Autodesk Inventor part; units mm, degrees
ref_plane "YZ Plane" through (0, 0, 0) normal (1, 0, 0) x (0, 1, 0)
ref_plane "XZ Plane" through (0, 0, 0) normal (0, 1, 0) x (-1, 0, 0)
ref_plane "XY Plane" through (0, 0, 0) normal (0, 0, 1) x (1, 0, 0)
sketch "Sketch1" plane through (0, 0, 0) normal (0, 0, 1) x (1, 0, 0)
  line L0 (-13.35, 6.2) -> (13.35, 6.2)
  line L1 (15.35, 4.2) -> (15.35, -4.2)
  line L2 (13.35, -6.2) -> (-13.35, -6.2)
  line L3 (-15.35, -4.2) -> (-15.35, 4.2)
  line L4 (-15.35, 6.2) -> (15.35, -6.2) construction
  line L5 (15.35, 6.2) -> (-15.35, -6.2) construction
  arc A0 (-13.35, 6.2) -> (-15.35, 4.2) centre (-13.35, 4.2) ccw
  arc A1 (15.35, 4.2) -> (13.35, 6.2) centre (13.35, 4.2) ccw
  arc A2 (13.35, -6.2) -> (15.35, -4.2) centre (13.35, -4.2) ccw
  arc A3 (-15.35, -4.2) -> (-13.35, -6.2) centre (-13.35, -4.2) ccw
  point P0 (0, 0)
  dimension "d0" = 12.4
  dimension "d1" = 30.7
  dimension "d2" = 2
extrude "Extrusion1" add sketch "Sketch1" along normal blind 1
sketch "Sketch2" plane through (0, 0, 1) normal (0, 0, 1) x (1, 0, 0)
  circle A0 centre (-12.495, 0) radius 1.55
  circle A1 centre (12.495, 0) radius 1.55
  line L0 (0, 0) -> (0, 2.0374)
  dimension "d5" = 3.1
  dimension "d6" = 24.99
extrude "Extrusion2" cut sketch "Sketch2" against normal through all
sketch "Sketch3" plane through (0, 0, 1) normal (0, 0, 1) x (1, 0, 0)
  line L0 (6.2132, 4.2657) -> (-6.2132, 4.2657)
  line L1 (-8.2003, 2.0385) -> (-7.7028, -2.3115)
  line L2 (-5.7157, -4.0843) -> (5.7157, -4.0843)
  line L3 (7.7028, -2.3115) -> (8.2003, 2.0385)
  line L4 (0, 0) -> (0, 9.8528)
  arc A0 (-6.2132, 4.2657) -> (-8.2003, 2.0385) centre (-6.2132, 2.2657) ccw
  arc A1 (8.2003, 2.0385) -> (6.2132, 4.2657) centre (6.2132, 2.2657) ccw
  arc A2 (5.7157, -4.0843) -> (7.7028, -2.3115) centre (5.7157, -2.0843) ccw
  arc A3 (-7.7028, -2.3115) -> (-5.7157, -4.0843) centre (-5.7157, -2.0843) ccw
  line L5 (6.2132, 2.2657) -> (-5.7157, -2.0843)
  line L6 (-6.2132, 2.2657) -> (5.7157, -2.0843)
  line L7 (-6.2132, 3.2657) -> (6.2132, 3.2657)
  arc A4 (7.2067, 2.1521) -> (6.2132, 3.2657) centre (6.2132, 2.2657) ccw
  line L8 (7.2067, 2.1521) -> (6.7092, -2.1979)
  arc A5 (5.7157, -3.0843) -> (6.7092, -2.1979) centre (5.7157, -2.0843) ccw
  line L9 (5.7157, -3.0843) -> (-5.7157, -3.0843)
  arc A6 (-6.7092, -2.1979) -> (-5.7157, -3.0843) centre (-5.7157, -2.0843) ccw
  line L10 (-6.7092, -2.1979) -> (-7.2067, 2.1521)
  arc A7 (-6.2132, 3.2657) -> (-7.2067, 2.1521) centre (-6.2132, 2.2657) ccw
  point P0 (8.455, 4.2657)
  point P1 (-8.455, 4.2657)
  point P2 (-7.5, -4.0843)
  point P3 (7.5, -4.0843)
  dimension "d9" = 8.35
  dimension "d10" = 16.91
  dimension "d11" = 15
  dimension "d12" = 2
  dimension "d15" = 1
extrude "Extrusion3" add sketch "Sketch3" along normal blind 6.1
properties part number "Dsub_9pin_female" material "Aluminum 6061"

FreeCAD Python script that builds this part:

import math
import FreeCAD as App
import Part
import Sketcher

doc = App.newDocument("Part")
body = doc.addObject("PartDesign::Body", "Body")

sketch1 = body.newObject("Sketcher::SketchObject", "Sketch")
sketch1.AttachmentSupport = (doc.getObject("XY_Plane"), [""])
sketch1.MapMode = "FlatFace"
sketch1.addGeometry(Part.LineSegment(App.Vector(13.3, 6.2, 0), App.Vector(-13.3, 6.2, 0)), False)
sketch1.addGeometry(Part.ArcOfCircle(Part.Circle(App.Vector(-13.3, 4.2, 0), App.Vector(0, 0, 1), 2), math.radians(90), math.radians(180)), False)
sketch1.addGeometry(Part.LineSegment(App.Vector(-15.3, 4.2, 0), App.Vector(-15.3, -4.2, 0)), False)
sketch1.addGeometry(Part.ArcOfCircle(Part.Circle(App.Vector(-13.3, -4.2, 0), App.Vector(0, 0, 1), 2), math.radians(180), math.radians(270)), False)
sketch1.addGeometry(Part.LineSegment(App.Vector(-13.3, -6.2, 0), App.Vector(13.3, -6.2, 0)), False)
sketch1.addGeometry(Part.ArcOfCircle(Part.Circle(App.Vector(13.3, -4.2, 0), App.Vector(0, 0, 1), 2), math.radians(-90), math.radians(0)), False)
sketch1.addGeometry(Part.LineSegment(App.Vector(15.3, -4.2, 0), App.Vector(15.3, 4.2, 0)), False)
sketch1.addGeometry(Part.ArcOfCircle(Part.Circle(App.Vector(13.3, 4.2, 0), App.Vector(0, 0, 1), 2), math.radians(0), math.radians(90)), False)
sketch1.addConstraint(Sketcher.Constraint("Tangent", 0, 2, 1, 1))
sketch1.addConstraint(Sketcher.Constraint("Tangent", 1, 2, 2, 1))
sketch1.addConstraint(Sketcher.Constraint("Tangent", 2, 2, 3, 1))
sketch1.addConstraint(Sketcher.Constraint("Tangent", 3, 2, 4, 1))
sketch1.addConstraint(Sketcher.Constraint("Tangent", 4, 2, 5, 1))
sketch1.addConstraint(Sketcher.Constraint("Tangent", 5, 2, 6, 1))
sketch1.addConstraint(Sketcher.Constraint("Tangent", 6, 2, 7, 1))
sketch1.addConstraint(Sketcher.Constraint("Tangent", 7, 2, 0, 1))
sketch1.addConstraint(Sketcher.Constraint("Horizontal", 0))
sketch1.addConstraint(Sketcher.Constraint("Vertical", 2))
sketch1.addConstraint(Sketcher.Constraint("Horizontal", 4))
sketch1.addConstraint(Sketcher.Constraint("Vertical", 6))
sketch1.addConstraint(Sketcher.Constraint("Equal", 1, 3))
sketch1.addConstraint(Sketcher.Constraint("Equal", 3, 5))
sketch1.addConstraint(Sketcher.Constraint("Equal", 5, 7))
sketch1.addConstraint(Sketcher.Constraint("Symmetric", 1, 3, 5, 3, -1, 1))
sketch1.addConstraint(Sketcher.Constraint("Radius", 1, 2.0))
sketch1.addConstraint(Sketcher.Constraint("DistanceY", 3, 2, 0, 2, 12.4))
sketch1.addConstraint(Sketcher.Constraint("DistanceX", 0, 2, 0, 1, 26.7))
pad1 = body.newObject("PartDesign::Pad", "Pad")
pad1.Profile = sketch1
pad1.Length = 1

sketch2 = body.newObject("Sketcher::SketchObject", "Sketch001")
sketch2.AttachmentSupport = (doc.getObject("XY_Plane"), [""])
sketch2.MapMode = "FlatFace"
sketch2.AttachmentOffset = App.Placement(App.Vector(0, 0, 1), App.Rotation())
sketch2.addGeometry(Part.Circle(App.Vector(-12.5, 0, 0), App.Vector(0, 0, 1), 1.6), False)
sketch2.addGeometry(Part.Circle(App.Vector(12.5, 0, 0), App.Vector(0, 0, 1), 1.6), False)
sketch2.addConstraint(Sketcher.Constraint("Equal", 0, 1))
sketch2.addConstraint(Sketcher.Constraint("Symmetric", 0, 3, 1, 3, -1, 1))
sketch2.addConstraint(Sketcher.Constraint("PointOnObject", 0, 3, -1))
sketch2.addConstraint(Sketcher.Constraint("Diameter", 0, 3.1))
sketch2.addConstraint(Sketcher.Constraint("DistanceX", 0, 3, 1, 3, 24.99))
pocket1 = body.newObject("PartDesign::Pocket", "Pocket")
pocket1.Profile = sketch2
pocket1.Type = "ThroughAll"

sketch3 = body.newObject("Sketcher::SketchObject", "Sketch002")
sketch3.AttachmentSupport = (doc.getObject("XY_Plane"), [""])
sketch3.MapMode = "FlatFace"
sketch3.AttachmentOffset = App.Placement(App.Vector(0, 0, 1), App.Rotation())
sketch3.addGeometry(Part.ArcOfCircle(Part.Circle(App.Vector(6.2, 2.3, 0), App.Vector(0, 0, 1), 2), math.radians(-7), math.radians(90)), False)
sketch3.addGeometry(Part.LineSegment(App.Vector(6.2, 4.3, 0), App.Vector(0, 4.3, 0)), False)
sketch3.addGeometry(Part.LineSegment(App.Vector(0, 4.3, 0), App.Vector(-6.2, 4.3, 0)), False)
sketch3.addGeometry(Part.ArcOfCircle(Part.Circle(App.Vector(-6.2, 2.3, 0), App.Vector(0, 0, 1), 2), math.radians(90), math.radians(187)), False)
sketch3.addGeometry(Part.LineSegment(App.Vector(-8.2, 2, 0), App.Vector(-7.7, -2.3, 0)), False)
sketch3.addGeometry(Part.ArcOfCircle(Part.Circle(App.Vector(-5.7, -2.1, 0), App.Vector(0, 0, 1), 2), math.radians(-173), math.radians(-90)), False)
sketch3.addGeometry(Part.LineSegment(App.Vector(-5.7, -4.1, 0), App.Vector(5.7, -4.1, 0)), False)
sketch3.addGeometry(Part.ArcOfCircle(Part.Circle(App.Vector(5.7, -2.1, 0), App.Vector(0, 0, 1), 2), math.radians(-90), math.radians(-7)), False)
sketch3.addGeometry(Part.LineSegment(App.Vector(7.7, -2.3, 0), App.Vector(8.2, 2, 0)), False)
sketch3.addGeometry(Part.LineSegment(App.Vector(-6.2, 3.3, 0), App.Vector(0, 3.3, 0)), False)
sketch3.addGeometry(Part.LineSegment(App.Vector(0, 3.3, 0), App.Vector(6.2, 3.3, 0)), False)
sketch3.addGeometry(Part.ArcOfCircle(Part.Circle(App.Vector(6.2, 2.3, 0), App.Vector(0, 0, 1), 1), math.radians(-7), math.radians(90)), False)
sketch3.addGeometry(Part.LineSegment(App.Vector(7.2, 2.2, 0), App.Vector(6.7, -2.2, 0)), False)
sketch3.addGeometry(Part.ArcOfCircle(Part.Circle(App.Vector(5.7, -2.1, 0), App.Vector(0, 0, 1), 1), math.radians(-90), math.radians(-7)), False)
sketch3.addGeometry(Part.LineSegment(App.Vector(5.7, -3.1, 0), App.Vector(-5.7, -3.1, 0)), False)
sketch3.addGeometry(Part.ArcOfCircle(Part.Circle(App.Vector(-5.7, -2.1, 0), App.Vector(0, 0, 1), 1), math.radians(-173), math.radians(-90)), False)
sketch3.addGeometry(Part.LineSegment(App.Vector(-6.7, -2.2, 0), App.Vector(-7.2, 2.2, 0)), False)
sketch3.addGeometry(Part.ArcOfCircle(Part.Circle(App.Vector(-6.2, 2.3, 0), App.Vector(0, 0, 1), 1), math.radians(90), math.radians(187)), False)
sketch3.addConstraint(Sketcher.Constraint("Tangent", 0, 2, 1, 1))
sketch3.addConstraint(Sketcher.Constraint("Coincident", 1, 2, 2, 1))
sketch3.addConstraint(Sketcher.Constraint("Tangent", 2, 2, 3, 1))
sketch3.addConstraint(Sketcher.Constraint("Tangent", 3, 2, 4, 1))
sketch3.addConstraint(Sketcher.Constraint("Tangent", 4, 2, 5, 1))
sketch3.addConstraint(Sketcher.Constraint("Tangent", 5, 2, 6, 1))
sketch3.addConstraint(Sketcher.Constraint("Tangent", 6, 2, 7, 1))
sketch3.addConstraint(Sketcher.Constraint("Tangent", 7, 2, 8, 1))
sketch3.addConstraint(Sketcher.Constraint("Tangent", 8, 2, 0, 1))
sketch3.addConstraint(Sketcher.Constraint("Coincident", 9, 2, 10, 1))
sketch3.addConstraint(Sketcher.Constraint("Tangent", 10, 2, 11, 2))
sketch3.addConstraint(Sketcher.Constraint("Tangent", 11, 1, 12, 1))
sketch3.addConstraint(Sketcher.Constraint("Tangent", 12, 2, 13, 2))
sketch3.addConstraint(Sketcher.Constraint("Tangent", 13, 1, 14, 1))
sketch3.addConstraint(Sketcher.Constraint("Tangent", 14, 2, 15, 2))
sketch3.addConstraint(Sketcher.Constraint("Tangent", 15, 1, 16, 1))
sketch3.addConstraint(Sketcher.Constraint("Tangent", 16, 2, 17, 2))
sketch3.addConstraint(Sketcher.Constraint("Tangent", 17, 1, 9, 1))
sketch3.addConstraint(Sketcher.Constraint("Horizontal", 1))
sketch3.addConstraint(Sketcher.Constraint("Horizontal", 2))
sketch3.addConstraint(Sketcher.Constraint("Horizontal", 6))
sketch3.addConstraint(Sketcher.Constraint("Horizontal", 9))
sketch3.addConstraint(Sketcher.Constraint("Horizontal", 10))
sketch3.addConstraint(Sketcher.Constraint("Horizontal", 14))
sketch3.addConstraint(Sketcher.Constraint("Coincident", 11, 3, 0, 3))
sketch3.addConstraint(Sketcher.Constraint("Coincident", 13, 3, 7, 3))
sketch3.addConstraint(Sketcher.Constraint("Coincident", 15, 3, 5, 3))
sketch3.addConstraint(Sketcher.Constraint("Coincident", 17, 3, 3, 3))
sketch3.addConstraint(Sketcher.Constraint("Equal", 0, 3))
sketch3.addConstraint(Sketcher.Constraint("Equal", 3, 5))
sketch3.addConstraint(Sketcher.Constraint("Equal", 5, 7))
sketch3.addConstraint(Sketcher.Constraint("Equal", 11, 13))
sketch3.addConstraint(Sketcher.Constraint("Symmetric", 4, 2, 7, 2, -2))
sketch3.addConstraint(Sketcher.Constraint("PointOnObject", 1, 2, -2))
sketch3.addConstraint(Sketcher.Constraint("PointOnObject", 9, 2, -2))
sketch3.addConstraint(Sketcher.Constraint("Radius", 0, 2.0))
sketch3.addConstraint(Sketcher.Constraint("Radius", 11, 1.0))
sketch3.addConstraint(Sketcher.Constraint("DistanceY", 6, 2, 0, 2, 8.35))
sketch3.addConstraint(Sketcher.Constraint("DistanceX", 1, 2, 1, 1, 6.2132))
sketch3.addConstraint(Sketcher.Constraint("DistanceX", 6, 1, 6, 2, 11.4314))
sketch3.addConstraint(Sketcher.Constraint("DistanceY", -1, 1, 11, 1, 2.152))
pad2 = body.newObject("PartDesign::Pad", "Pad001")
pad2.Profile = sketch3
pad2.Length = 6.1

doc.recompute()
